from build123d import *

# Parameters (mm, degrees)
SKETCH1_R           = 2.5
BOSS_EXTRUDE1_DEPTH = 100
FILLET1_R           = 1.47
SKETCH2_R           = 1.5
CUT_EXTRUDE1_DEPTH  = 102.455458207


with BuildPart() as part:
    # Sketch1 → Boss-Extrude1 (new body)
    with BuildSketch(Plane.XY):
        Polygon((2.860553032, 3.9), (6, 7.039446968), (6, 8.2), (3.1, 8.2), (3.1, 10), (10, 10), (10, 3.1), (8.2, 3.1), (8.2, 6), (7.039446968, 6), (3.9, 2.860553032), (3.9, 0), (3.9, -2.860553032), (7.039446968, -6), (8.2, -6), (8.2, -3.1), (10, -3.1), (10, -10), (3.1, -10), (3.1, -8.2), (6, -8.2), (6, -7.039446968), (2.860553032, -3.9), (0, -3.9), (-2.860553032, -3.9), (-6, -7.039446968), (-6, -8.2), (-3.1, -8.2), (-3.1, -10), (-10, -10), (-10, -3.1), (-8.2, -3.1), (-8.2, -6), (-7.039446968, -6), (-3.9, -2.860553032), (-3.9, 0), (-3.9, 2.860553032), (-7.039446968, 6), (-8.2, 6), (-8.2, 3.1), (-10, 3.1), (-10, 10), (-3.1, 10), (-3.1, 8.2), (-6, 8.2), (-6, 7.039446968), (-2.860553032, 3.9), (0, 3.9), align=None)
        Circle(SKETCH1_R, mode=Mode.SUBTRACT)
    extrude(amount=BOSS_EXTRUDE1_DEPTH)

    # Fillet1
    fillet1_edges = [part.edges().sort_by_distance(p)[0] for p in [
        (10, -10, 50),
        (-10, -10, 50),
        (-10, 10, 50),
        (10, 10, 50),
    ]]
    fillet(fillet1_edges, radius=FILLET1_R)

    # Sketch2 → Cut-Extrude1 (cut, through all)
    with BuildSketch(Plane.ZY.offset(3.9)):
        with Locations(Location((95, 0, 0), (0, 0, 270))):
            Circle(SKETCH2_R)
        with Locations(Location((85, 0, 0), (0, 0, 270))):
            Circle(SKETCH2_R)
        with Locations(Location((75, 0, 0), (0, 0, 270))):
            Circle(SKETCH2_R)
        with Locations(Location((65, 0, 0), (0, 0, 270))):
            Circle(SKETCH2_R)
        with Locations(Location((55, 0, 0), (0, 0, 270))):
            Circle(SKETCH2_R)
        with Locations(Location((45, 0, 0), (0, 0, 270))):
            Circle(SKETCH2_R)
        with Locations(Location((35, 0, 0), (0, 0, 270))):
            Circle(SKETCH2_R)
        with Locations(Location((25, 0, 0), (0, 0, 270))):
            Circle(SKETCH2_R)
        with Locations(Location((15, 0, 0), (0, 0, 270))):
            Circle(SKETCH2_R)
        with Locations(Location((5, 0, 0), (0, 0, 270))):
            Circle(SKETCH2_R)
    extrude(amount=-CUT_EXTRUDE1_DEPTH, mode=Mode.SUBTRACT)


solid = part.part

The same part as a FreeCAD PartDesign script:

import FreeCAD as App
import Part
import Sketcher


def edges_at(feature, points):
    """Names of the edges that pass closest to the given points."""
    edges = feature.Shape.Edges
    near = lambda p: min(range(len(edges)), key=lambda i: edges[i].distToShape(Part.Vertex(*p))[0])
    return sorted({f"Edge{near(p) + 1}" for p in points})


def add_polygon(sketch, points):
    """Adds a closed chain of lines whose ends are joined by coincident constraints."""
    first, n = sketch.GeometryCount, len(points)
    for a, b in zip(points, points[1:] + points[:1]):
        sketch.addGeometry(Part.LineSegment(App.Vector(*a, 0), App.Vector(*b, 0)), False)
    for i in range(n):
        sketch.addConstraint(Sketcher.Constraint("Coincident", first + i, 2, first + (i + 1) % n, 1))

doc = App.newDocument("Part")
params = doc.addObject("Spreadsheet::Sheet", "Params")
for row, (alias, value) in enumerate([
    ("sketch1_diameter", "5 mm"),
    ("sketch1_width", "2.9 mm"),
    ("sketch1_width2", "6.9 mm"),
    ("sketch1_width3", "1.8 mm"),
    ("pad1_length", "100 mm"),
    ("fillet_radius", "1.47 mm"),
    ("sketch2_diameter", "3 mm"),
], start=1):
    params.set(f"A{row}", alias)
    params.set(f"B{row}", "=" + value)
    params.setAlias(f"B{row}", alias)

body = doc.addObject("PartDesign::Body", "Body")

# Sketch on XY plane
sketch1 = body.newObject("Sketcher::SketchObject", "Sketch")
sketch1.AttachmentSupport = (doc.getObject("XY_Plane"), [""])
sketch1.MapMode = "FlatFace"
add_polygon(sketch1, [(6, 7.039447), (2.860553, 3.9), (-2.860553, 3.9), (-6, 7.039447), (-6, 8.2), (-3.1, 8.2), (-3.1, 10), (-10, 10), (-10, 3.1), (-8.2, 3.1), (-8.2, 6), (-7.039447, 6), (-3.9, 2.860553), (-3.9, -2.860553), (-7.039447, -6), (-8.2, -6), (-8.2, -3.1), (-10, -3.1), (-10, -10), (-3.1, -10), (-3.1, -8.2), (-6, -8.2), (-6, -7.039447), (-2.860553, -3.9), (2.860553, -3.9), (6, -7.039447), (6, -8.2), (3.1, -8.2), (3.1, -10), (10, -10), (10, -3.1), (8.2, -3.1), (8.2, -6), (7.039447, -6), (3.9, -2.860553), (3.9, 2.860553), (7.039447, 6), (8.2, 6), (8.2, 3.1), (10, 3.1), (10, 10), (3.1, 10), (3.1, 8.2), (6, 8.2)])  # lines 0-43
sketch1.addGeometry(Part.Circle(App.Vector(0, 0, 0), App.Vector(0, 0, 1), 2.5), False)  # 44
sketch1.addConstraint(Sketcher.Constraint("Horizontal", 1))
sketch1.addConstraint(Sketcher.Constraint("Vertical", 3))
sketch1.addConstraint(Sketcher.Constraint("Horizontal", 4))
sketch1.addConstraint(Sketcher.Constraint("Vertical", 5))
sketch1.addConstraint(Sketcher.Constraint("Horizontal", 6))
sketch1.addConstraint(Sketcher.Constraint("Vertical", 7))
sketch1.addConstraint(Sketcher.Constraint("Horizontal", 8))
sketch1.addConstraint(Sketcher.Constraint("Vertical", 9))
sketch1.addConstraint(Sketcher.Constraint("Horizontal", 10))
sketch1.addConstraint(Sketcher.Constraint("Vertical", 12))
sketch1.addConstraint(Sketcher.Constraint("Horizontal", 14))
sketch1.addConstraint(Sketcher.Constraint("Vertical", 15))
sketch1.addConstraint(Sketcher.Constraint("Horizontal", 16))
sketch1.addConstraint(Sketcher.Constraint("Vertical", 17))
sketch1.addConstraint(Sketcher.Constraint("Horizontal", 18))
sketch1.addConstraint(Sketcher.Constraint("Vertical", 19))
sketch1.addConstraint(Sketcher.Constraint("Horizontal", 20))
sketch1.addConstraint(Sketcher.Constraint("Vertical", 21))
sketch1.addConstraint(Sketcher.Constraint("Horizontal", 23))
sketch1.addConstraint(Sketcher.Constraint("Vertical", 25))
sketch1.addConstraint(Sketcher.Constraint("Horizontal", 26))
sketch1.addConstraint(Sketcher.Constraint("Vertical", 27))
sketch1.addConstraint(Sketcher.Constraint("Horizontal", 28))
sketch1.addConstraint(Sketcher.Constraint("Vertical", 29))
sketch1.addConstraint(Sketcher.Constraint("Horizontal", 30))
sketch1.addConstraint(Sketcher.Constraint("Vertical", 31))
sketch1.addConstraint(Sketcher.Constraint("Horizontal", 32))
sketch1.addConstraint(Sketcher.Constraint("Vertical", 34))
sketch1.addConstraint(Sketcher.Constraint("Horizontal", 36))
sketch1.addConstraint(Sketcher.Constraint("Vertical", 37))
sketch1.addConstraint(Sketcher.Constraint("Horizontal", 38))
sketch1.addConstraint(Sketcher.Constraint("Vertical", 39))
sketch1.addConstraint(Sketcher.Constraint("Horizontal", 40))
sketch1.addConstraint(Sketcher.Constraint("Vertical", 41))
sketch1.addConstraint(Sketcher.Constraint("Horizontal", 42))
sketch1.addConstraint(Sketcher.Constraint("Vertical", 43))
sketch1.addConstraint(Sketcher.Constraint("Coincident", 44, 3, -1, 1))
sketch1.addConstraint(Sketcher.Constraint("Symmetric", 0, 2, 22, 2, -1, 1))
sketch1.addConstraint(Sketcher.Constraint("Symmetric", 2, 2, 24, 2, -1, 1))
sketch1.addConstraint(Sketcher.Constraint("Symmetric", 4, 2, 26, 2, -1, 1))
sketch1.addConstraint(Sketcher.Constraint("Symmetric", 6, 2, 28, 2, -1, 1))
sketch1.addConstraint(Sketcher.Constraint("Symmetric", 8, 2, 30, 2, -1, 1))
sketch1.addConstraint(Sketcher.Constraint("Symmetric", 10, 2, 32, 2, -1, 1))
sketch1.addConstraint(Sketcher.Constraint("Symmetric", 11, 2, 33, 2, -1, 1))
sketch1.addConstraint(Sketcher.Constraint("Symmetric", 13, 2, 35, 2, -1, 1))
sketch1.addConstraint(Sketcher.Constraint("Symmetric", 15, 2, 37, 2, -1, 1))
sketch1.addConstraint(Sketcher.Constraint("Symmetric", 17, 2, 39, 2, -1, 1))
sketch1.addConstraint(Sketcher.Constraint("Symmetric", 19, 2, 41, 2, -1, 1))
sketch1.addConstraint(Sketcher.Constraint("Symmetric", 21, 2, 43, 2, -1, 1))
sketch1.addConstraint(Sketcher.Constraint("Symmetric", 21, 2, 24, 2, -2))
sketch1.addConstraint(Sketcher.Constraint("Symmetric", 19, 2, 26, 2, -2))
sketch1.addConstraint(Sketcher.Constraint("Symmetric", 17, 2, 28, 2, -2))
sketch1.addConstraint(Sketcher.Constraint("Symmetric", 15, 2, 30, 2, -2))
sketch1.addConstraint(Sketcher.Constraint("Symmetric", 13, 2, 32, 2, -2))
sketch1.addConstraint(Sketcher.Constraint("Perpendicular", 0, 2))
sketch1.addConstraint(Sketcher.Constraint("Parallel", 2, 11))
sketch1.addConstraint(Sketcher.Constraint("Perpendicular", 11, 13))
sketch1.addConstraint(Sketcher.Constraint("Perpendicular", 22, 24))
sketch1.addConstraint(Sketcher.Constraint("Perpendicular", 33, 35))
sketch1.addConstraint(Sketcher.Constraint("Horizontal", 12, 2, 33, 2))
sketch1.addConstraint(Sketcher.Constraint("Equal", 36, 3))
sketch1.addConstraint(Sketcher.Constraint("Equal", 38, 5))
sketch1.addConstraint(Sketcher.Constraint("Equal", 40, 7))
sketch1.addConstraint(Sketcher.Constraint("Equal", 42, 9))
sketch1.addConstraint(Sketcher.Constraint("Equal", 23, 12))
sketch1.addConstraint(Sketcher.Constraint("Equal", 2, 11))
sketch1.addConstraint(Sketcher.Constraint("Diameter", 44, 5.0))
sketch1.addConstraint(Sketcher.Constraint("DistanceX", 4, 1, 4, 2, 2.9))
sketch1.addConstraint(Sketcher.Constraint("DistanceX", 6, 2, 6, 1, 6.9))
sketch1.addConstraint(Sketcher.Constraint("DistanceX", 8, 1, 8, 2, 1.8))
sketch1.addConstraint(Sketcher.Constraint("DistanceX", 2, 2, -1, 1, 6.0))
sketch1.addConstraint(Sketcher.Constraint("DistanceY", -1, 1, 0, 2, 3.9))
sketch1.addConstraint(Sketcher.Constraint("Distance", 0, 4.439848))
sketch1.setExpression("Constraints[110]", "Params.sketch1_diameter")
sketch1.setExpression("Constraints[111]", "Params.sketch1_width")
sketch1.setExpression("Constraints[112]", "Params.sketch1_width2")
sketch1.setExpression("Constraints[113]", "Params.sketch1_width3")
pad1 = body.newObject("PartDesign::Pad", "Pad")
pad1.Profile = sketch1
pad1.setExpression("Length", "Params.pad1_length")
doc.recompute()

fillet = body.newObject("PartDesign::Fillet", "Fillet")
fillet.Base = (pad1, edges_at(pad1, [
    (10, -10, 50),
    (-10, -10, 50),
    (-10, 10, 50),
    (10, 10, 50),
]))
fillet.setExpression("Radius", "Params.fillet_radius")

# Sketch on YZ plane
sketch2 = body.newObject("Sketcher::SketchObject", "Sketch001")
sketch2.AttachmentSupport = (doc.getObject("YZ_Plane"), [""])
sketch2.MapMode = "FlatFace"
sketch2.AttachmentOffset = App.Placement(App.Vector(0, 0, -3.9), App.Rotation())
sketch2.addGeometry(Part.Circle(App.Vector(0, 95, 0), App.Vector(0, 0, 1), 1.5), False)
sketch2.addGeometry(Part.Circle(App.Vector(0, 85, 0), App.Vector(0, 0, 1), 1.5), False)
sketch2.addGeometry(Part.Circle(App.Vector(0, 75, 0), App.Vector(0, 0, 1), 1.5), False)
sketch2.addGeometry(Part.Circle(App.Vector(0, 65, 0), App.Vector(0, 0, 1), 1.5), False)
sketch2.addGeometry(Part.Circle(App.Vector(0, 55, 0), App.Vector(0, 0, 1), 1.5), False)
sketch2.addGeometry(Part.Circle(App.Vector(0, 45, 0), App.Vector(0, 0, 1), 1.5), False)
sketch2.addGeometry(Part.Circle(App.Vector(0, 35, 0), App.Vector(0, 0, 1), 1.5), False)
sketch2.addGeometry(Part.Circle(App.Vector(0, 25, 0), App.Vector(0, 0, 1), 1.5), False)
sketch2.addGeometry(Part.Circle(App.Vector(0, 15, 0), App.Vector(0, 0, 1), 1.5), False)
sketch2.addGeometry(Part.Circle(App.Vector(0, 5, 0), App.Vector(0, 0, 1), 1.5), False)
sketch2.addConstraint(Sketcher.Constraint("Equal", 0, 1))
sketch2.addConstraint(Sketcher.Constraint("Equal", 1, 2))
sketch2.addConstraint(Sketcher.Constraint("Equal", 2, 3))
sketch2.addConstraint(Sketcher.Constraint("Equal", 3, 4))
sketch2.addConstraint(Sketcher.Constraint("Equal", 4, 5))
sketch2.addConstraint(Sketcher.Constraint("Equal", 5, 6))
sketch2.addConstraint(Sketcher.Constraint("Equal", 6, 7))
sketch2.addConstraint(Sketcher.Constraint("Equal", 7, 8))
sketch2.addConstraint(Sketcher.Constraint("Equal", 8, 9))
sketch2.addConstraint(Sketcher.Constraint("PointOnObject", 0, 3, -2))
sketch2.addConstraint(Sketcher.Constraint("PointOnObject", 1, 3, -2))
sketch2.addConstraint(Sketcher.Constraint("PointOnObject", 2, 3, -2))
sketch2.addConstraint(Sketcher.Constraint("PointOnObject", 3, 3, -2))
sketch2.addConstraint(Sketcher.Constraint("PointOnObject", 4, 3, -2))
sketch2.addConstraint(Sketcher.Constraint("PointOnObject", 5, 3, -2))
sketch2.addConstraint(Sketcher.Constraint("PointOnObject", 6, 3, -2))
sketch2.addConstraint(Sketcher.Constraint("PointOnObject", 7, 3, -2))
sketch2.addConstraint(Sketcher.Constraint("PointOnObject", 8, 3, -2))
sketch2.addConstraint(Sketcher.Constraint("PointOnObject", 9, 3, -2))
sketch2.addConstraint(Sketcher.Constraint("Diameter", 0, 3.0))
sketch2.addConstraint(Sketcher.Constraint("DistanceY", -1, 1, 0, 3, 95.0))
sketch2.addConstraint(Sketcher.Constraint("DistanceY", -1, 1, 1, 3, 85.0))
sketch2.addConstraint(Sketcher.Constraint("DistanceY", -1, 1, 2, 3, 75.0))
sketch2.addConstraint(Sketcher.Constraint("DistanceY", -1, 1, 3, 3, 65.0))
sketch2.addConstraint(Sketcher.Constraint("DistanceY", -1, 1, 4, 3, 55.0))
sketch2.addConstraint(Sketcher.Constraint("DistanceY", -1, 1, 5, 3, 45.0))
sketch2.addConstraint(Sketcher.Constraint("DistanceY", -1, 1, 6, 3, 35.0))
sketch2.addConstraint(Sketcher.Constraint("DistanceY", -1, 1, 7, 3, 25.0))
sketch2.addConstraint(Sketcher.Constraint("DistanceY", -1, 1, 8, 3, 15.0))
sketch2.addConstraint(Sketcher.Constraint("DistanceY", -1, 1, 9, 3, 5.0))
sketch2.setExpression("Constraints[19]", "Params.sketch2_diameter")
pocket1 = body.newObject("PartDesign::Pocket", "Pocket")
pocket1.Profile = sketch2
pocket1.Type = "ThroughAll"
pocket1.Reversed = True

doc.recompute()
